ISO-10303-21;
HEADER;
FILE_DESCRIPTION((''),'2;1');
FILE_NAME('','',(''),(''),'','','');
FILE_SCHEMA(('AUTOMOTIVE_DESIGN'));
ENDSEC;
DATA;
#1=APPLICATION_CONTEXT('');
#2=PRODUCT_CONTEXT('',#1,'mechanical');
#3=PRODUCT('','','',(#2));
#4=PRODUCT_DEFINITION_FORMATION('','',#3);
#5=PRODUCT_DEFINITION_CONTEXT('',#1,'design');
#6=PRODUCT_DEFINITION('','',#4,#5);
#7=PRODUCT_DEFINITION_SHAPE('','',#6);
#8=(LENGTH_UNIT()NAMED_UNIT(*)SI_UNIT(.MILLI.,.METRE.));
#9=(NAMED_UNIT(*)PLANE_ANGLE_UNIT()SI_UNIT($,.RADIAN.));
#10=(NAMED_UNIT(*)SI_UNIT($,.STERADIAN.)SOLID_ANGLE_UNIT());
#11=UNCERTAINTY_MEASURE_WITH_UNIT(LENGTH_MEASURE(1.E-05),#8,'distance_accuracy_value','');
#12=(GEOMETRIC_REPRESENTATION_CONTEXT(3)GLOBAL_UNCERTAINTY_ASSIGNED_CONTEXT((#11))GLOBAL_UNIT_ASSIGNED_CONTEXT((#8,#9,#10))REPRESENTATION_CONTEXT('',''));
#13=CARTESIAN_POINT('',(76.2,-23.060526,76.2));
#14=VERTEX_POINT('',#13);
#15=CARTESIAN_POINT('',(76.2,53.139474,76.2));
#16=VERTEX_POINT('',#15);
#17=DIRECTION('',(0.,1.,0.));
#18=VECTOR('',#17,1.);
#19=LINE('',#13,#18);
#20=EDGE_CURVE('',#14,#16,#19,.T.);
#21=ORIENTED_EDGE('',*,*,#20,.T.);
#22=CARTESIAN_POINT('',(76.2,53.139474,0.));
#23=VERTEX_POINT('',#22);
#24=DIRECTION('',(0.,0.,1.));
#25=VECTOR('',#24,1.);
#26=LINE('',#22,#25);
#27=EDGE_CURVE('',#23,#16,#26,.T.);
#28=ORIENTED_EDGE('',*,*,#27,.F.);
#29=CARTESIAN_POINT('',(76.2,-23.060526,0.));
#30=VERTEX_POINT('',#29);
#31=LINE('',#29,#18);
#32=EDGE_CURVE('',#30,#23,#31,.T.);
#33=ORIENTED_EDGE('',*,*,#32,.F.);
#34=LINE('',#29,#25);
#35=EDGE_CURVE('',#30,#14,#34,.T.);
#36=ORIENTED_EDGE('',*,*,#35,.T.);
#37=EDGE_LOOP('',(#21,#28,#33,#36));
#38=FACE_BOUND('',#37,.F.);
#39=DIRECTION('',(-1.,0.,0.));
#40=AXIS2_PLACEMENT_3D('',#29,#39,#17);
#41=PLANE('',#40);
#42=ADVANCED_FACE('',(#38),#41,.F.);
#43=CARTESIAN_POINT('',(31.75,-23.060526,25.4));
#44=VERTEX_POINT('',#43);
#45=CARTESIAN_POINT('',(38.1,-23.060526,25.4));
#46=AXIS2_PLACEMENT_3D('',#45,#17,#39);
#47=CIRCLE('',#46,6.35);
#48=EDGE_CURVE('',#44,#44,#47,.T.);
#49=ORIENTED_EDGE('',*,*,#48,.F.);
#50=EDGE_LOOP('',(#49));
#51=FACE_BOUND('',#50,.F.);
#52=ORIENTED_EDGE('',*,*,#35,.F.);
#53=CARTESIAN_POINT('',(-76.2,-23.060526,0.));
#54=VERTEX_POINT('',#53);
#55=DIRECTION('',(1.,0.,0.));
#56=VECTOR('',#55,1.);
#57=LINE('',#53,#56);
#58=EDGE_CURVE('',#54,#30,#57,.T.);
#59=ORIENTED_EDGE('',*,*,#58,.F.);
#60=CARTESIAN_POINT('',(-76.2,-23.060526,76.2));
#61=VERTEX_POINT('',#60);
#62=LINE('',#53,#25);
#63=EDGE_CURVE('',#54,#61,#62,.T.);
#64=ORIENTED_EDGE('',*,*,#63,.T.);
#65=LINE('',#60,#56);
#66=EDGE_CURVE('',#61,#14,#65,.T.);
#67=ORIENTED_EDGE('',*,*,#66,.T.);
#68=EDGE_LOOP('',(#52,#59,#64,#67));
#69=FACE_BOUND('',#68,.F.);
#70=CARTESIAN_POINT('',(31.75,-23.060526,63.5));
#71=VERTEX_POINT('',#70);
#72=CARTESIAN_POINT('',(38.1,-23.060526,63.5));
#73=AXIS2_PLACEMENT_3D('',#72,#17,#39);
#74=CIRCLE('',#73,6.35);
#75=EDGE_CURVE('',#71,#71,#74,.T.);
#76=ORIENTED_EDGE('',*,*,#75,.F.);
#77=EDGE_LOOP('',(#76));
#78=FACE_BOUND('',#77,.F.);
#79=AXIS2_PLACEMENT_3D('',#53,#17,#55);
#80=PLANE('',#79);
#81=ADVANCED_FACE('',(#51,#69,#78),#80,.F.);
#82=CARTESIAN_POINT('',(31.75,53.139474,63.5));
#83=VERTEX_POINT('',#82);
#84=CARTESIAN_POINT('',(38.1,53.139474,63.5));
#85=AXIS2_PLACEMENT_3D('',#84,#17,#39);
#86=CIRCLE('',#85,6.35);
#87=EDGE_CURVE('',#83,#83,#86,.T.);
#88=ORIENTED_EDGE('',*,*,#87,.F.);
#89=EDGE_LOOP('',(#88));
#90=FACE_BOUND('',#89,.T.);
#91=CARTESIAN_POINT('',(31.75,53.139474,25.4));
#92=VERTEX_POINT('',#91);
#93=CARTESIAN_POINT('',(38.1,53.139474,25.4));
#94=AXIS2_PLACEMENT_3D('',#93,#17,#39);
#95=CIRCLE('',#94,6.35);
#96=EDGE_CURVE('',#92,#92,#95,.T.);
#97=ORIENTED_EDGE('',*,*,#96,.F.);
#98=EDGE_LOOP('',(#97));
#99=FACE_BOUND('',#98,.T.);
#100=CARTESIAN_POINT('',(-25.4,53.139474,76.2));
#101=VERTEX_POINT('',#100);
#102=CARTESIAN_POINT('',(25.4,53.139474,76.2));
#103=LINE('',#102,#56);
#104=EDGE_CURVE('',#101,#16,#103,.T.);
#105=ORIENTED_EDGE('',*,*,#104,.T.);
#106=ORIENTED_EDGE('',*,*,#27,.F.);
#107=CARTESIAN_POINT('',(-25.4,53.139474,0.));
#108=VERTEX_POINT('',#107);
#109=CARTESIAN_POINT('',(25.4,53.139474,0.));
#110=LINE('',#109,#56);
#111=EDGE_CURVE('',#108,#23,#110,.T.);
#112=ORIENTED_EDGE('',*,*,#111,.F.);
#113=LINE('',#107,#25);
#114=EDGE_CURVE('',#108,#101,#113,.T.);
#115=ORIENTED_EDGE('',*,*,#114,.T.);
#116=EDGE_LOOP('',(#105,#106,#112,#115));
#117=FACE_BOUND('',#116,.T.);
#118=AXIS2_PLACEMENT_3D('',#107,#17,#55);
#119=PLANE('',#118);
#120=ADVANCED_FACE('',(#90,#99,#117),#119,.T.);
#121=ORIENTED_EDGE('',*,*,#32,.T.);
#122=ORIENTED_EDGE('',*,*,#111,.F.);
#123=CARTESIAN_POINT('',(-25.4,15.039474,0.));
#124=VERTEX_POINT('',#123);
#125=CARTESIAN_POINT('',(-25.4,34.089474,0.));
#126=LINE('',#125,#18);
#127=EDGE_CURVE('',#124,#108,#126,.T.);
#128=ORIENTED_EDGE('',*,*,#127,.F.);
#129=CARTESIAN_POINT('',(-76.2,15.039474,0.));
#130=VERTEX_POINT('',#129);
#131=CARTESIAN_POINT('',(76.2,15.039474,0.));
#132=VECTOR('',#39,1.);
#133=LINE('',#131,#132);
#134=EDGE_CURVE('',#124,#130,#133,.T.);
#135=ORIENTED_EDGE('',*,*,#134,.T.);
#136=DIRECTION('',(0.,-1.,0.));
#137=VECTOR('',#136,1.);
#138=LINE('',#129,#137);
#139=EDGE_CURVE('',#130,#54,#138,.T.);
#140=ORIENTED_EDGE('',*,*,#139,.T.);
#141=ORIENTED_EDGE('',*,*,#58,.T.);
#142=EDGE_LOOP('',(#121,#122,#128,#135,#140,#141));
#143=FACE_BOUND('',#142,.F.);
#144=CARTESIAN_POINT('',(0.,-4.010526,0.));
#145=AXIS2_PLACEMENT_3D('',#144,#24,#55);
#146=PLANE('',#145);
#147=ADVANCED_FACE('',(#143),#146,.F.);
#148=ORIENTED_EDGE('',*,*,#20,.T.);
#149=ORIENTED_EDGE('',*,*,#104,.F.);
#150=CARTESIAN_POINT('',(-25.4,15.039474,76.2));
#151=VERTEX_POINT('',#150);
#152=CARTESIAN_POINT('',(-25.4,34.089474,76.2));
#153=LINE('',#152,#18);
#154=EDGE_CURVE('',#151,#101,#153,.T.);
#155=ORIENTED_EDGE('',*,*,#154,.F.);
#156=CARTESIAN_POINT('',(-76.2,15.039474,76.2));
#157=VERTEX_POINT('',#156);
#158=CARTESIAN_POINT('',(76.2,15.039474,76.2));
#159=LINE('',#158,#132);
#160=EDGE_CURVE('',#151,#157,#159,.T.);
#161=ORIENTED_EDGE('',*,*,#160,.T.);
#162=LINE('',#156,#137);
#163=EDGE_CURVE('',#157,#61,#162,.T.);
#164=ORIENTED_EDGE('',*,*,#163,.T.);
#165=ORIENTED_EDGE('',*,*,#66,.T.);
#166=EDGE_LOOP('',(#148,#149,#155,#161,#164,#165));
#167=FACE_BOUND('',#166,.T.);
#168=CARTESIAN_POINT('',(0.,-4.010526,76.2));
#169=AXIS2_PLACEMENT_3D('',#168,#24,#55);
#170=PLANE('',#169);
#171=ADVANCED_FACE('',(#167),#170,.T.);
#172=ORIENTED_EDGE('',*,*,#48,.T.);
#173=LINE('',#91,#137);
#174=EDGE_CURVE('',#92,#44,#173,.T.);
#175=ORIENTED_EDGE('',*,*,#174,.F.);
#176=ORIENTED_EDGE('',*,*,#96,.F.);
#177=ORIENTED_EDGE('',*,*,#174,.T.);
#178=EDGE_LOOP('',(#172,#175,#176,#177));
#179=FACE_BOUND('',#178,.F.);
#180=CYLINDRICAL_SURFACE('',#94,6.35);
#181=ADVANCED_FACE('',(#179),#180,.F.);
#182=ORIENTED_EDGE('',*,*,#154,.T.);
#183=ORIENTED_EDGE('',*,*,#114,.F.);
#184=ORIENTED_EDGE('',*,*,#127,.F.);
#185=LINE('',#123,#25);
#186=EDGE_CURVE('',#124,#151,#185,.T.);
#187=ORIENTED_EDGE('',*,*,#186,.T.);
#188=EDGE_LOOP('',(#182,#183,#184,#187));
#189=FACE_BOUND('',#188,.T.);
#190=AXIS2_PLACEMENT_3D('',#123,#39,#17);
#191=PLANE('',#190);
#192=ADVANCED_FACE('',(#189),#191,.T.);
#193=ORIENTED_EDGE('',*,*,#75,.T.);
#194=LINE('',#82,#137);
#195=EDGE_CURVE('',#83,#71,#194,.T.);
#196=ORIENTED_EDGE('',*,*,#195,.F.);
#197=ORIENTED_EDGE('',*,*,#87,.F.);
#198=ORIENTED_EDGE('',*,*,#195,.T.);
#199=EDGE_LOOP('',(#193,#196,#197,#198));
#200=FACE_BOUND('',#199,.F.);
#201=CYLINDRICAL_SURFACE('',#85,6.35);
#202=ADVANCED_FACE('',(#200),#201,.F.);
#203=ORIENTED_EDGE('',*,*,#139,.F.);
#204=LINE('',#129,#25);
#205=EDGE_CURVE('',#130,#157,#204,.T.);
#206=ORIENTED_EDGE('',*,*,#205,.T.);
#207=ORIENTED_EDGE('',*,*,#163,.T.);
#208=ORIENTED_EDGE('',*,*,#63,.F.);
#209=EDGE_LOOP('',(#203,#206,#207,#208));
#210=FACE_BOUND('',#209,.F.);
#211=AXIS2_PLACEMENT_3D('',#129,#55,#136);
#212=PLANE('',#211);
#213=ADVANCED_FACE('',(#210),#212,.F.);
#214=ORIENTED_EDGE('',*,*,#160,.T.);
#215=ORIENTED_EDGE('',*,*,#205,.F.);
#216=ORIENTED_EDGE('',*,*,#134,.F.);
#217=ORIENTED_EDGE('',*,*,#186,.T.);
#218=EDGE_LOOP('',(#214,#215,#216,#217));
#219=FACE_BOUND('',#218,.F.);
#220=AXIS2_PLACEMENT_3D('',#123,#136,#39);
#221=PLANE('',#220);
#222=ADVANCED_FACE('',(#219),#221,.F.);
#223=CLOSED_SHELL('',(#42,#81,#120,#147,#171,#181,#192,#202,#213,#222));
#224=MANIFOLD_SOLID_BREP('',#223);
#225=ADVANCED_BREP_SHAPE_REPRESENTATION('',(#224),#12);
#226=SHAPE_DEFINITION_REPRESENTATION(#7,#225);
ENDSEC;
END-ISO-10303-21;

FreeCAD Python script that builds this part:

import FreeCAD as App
import Part
import Sketcher
Q = App.Units.Quantity


def add_polygon(sketch, points):
    """Adds a closed chain of lines whose ends are joined by coincident constraints."""
    first, n = sketch.GeometryCount, len(points)
    for a, b in zip(points, points[1:] + points[:1]):
        sketch.addGeometry(Part.LineSegment(App.Vector(*a, 0), App.Vector(*b, 0)), False)
    for i in range(n):
        sketch.addConstraint(Sketcher.Constraint("Coincident", first + i, 2, first + (i + 1) % n, 1))

doc = App.newDocument("Part")
body = doc.addObject("PartDesign::Body", "Body")

# Sketch on XY plane
sketch1 = body.newObject("Sketcher::SketchObject", "Sketch")
sketch1.AttachmentSupport = (doc.getObject("XY_Plane"), [""])
sketch1.MapMode = "FlatFace"
add_polygon(sketch1, [(76, -23), (76, 53), (-25, 53), (-25, 15), (-76, 15), (-76, -23)])  # lines 0-5
sketch1.addConstraint(Sketcher.Constraint("Vertical", 0))
sketch1.addConstraint(Sketcher.Constraint("Horizontal", 1))
sketch1.addConstraint(Sketcher.Constraint("Vertical", 2))
sketch1.addConstraint(Sketcher.Constraint("Horizontal", 3))
sketch1.addConstraint(Sketcher.Constraint("Vertical", 4))
sketch1.addConstraint(Sketcher.Constraint("Horizontal", 5))
sketch1.addConstraint(Sketcher.Constraint("Equal", 2, 4))
sketch1.addConstraint(Sketcher.Constraint("DistanceX", 1, 2, 1, 1, Q("4 in")))
sketch1.addConstraint(Sketcher.Constraint("DistanceX", 3, 2, 3, 1, Q("2 in")))
sketch1.addConstraint(Sketcher.Constraint("DistanceY", 0, 1, 0, 2, Q("3 in")))
sketch1.addConstraint(Sketcher.Constraint("DistanceX", -1, 1, 0, 2, Q("3 in")))
sketch1.addConstraint(Sketcher.Constraint("DistanceY", -1, 1, 0, 2, Q("53.139474 mm")))
pad1 = body.newObject("PartDesign::Pad", "Pad")
pad1.Profile = sketch1
pad1.Length = Q("3 in")

# Sketch on XZ plane
sketch2 = body.newObject("Sketcher::SketchObject", "Sketch001")
sketch2.AttachmentSupport = (doc.getObject("XZ_Plane"), [""])
sketch2.MapMode = "FlatFace"
sketch2.AttachmentOffset = App.Placement(App.Vector(0, 0, -53.139474), App.Rotation())
sketch2.addGeometry(Part.Circle(App.Vector(38, 25, 0), App.Vector(0, 0, 1), 6), False)
sketch2.addGeometry(Part.Circle(App.Vector(38, 64, 0), App.Vector(0, 0, 1), 6), False)
sketch2.addConstraint(Sketcher.Constraint("Equal", 0, 1))
sketch2.addConstraint(Sketcher.Constraint("Vertical", 0, 3, 1, 3))
sketch2.addConstraint(Sketcher.Constraint("Diameter", 0, Q("0.5 in")))
sketch2.addConstraint(Sketcher.Constraint("DistanceY", -1, 1, 0, 3, Q("1 in")))
sketch2.addConstraint(Sketcher.Constraint("DistanceX", -1, 1, 0, 3, Q("1.5 in")))
sketch2.addConstraint(Sketcher.Constraint("DistanceY", -1, 1, 1, 3, Q("2.5 in")))
pocket1 = body.newObject("PartDesign::Pocket", "Pocket")
pocket1.Profile = sketch2
pocket1.Length = Q("3 in")
pocket1.Reversed = True

doc.recompute()
